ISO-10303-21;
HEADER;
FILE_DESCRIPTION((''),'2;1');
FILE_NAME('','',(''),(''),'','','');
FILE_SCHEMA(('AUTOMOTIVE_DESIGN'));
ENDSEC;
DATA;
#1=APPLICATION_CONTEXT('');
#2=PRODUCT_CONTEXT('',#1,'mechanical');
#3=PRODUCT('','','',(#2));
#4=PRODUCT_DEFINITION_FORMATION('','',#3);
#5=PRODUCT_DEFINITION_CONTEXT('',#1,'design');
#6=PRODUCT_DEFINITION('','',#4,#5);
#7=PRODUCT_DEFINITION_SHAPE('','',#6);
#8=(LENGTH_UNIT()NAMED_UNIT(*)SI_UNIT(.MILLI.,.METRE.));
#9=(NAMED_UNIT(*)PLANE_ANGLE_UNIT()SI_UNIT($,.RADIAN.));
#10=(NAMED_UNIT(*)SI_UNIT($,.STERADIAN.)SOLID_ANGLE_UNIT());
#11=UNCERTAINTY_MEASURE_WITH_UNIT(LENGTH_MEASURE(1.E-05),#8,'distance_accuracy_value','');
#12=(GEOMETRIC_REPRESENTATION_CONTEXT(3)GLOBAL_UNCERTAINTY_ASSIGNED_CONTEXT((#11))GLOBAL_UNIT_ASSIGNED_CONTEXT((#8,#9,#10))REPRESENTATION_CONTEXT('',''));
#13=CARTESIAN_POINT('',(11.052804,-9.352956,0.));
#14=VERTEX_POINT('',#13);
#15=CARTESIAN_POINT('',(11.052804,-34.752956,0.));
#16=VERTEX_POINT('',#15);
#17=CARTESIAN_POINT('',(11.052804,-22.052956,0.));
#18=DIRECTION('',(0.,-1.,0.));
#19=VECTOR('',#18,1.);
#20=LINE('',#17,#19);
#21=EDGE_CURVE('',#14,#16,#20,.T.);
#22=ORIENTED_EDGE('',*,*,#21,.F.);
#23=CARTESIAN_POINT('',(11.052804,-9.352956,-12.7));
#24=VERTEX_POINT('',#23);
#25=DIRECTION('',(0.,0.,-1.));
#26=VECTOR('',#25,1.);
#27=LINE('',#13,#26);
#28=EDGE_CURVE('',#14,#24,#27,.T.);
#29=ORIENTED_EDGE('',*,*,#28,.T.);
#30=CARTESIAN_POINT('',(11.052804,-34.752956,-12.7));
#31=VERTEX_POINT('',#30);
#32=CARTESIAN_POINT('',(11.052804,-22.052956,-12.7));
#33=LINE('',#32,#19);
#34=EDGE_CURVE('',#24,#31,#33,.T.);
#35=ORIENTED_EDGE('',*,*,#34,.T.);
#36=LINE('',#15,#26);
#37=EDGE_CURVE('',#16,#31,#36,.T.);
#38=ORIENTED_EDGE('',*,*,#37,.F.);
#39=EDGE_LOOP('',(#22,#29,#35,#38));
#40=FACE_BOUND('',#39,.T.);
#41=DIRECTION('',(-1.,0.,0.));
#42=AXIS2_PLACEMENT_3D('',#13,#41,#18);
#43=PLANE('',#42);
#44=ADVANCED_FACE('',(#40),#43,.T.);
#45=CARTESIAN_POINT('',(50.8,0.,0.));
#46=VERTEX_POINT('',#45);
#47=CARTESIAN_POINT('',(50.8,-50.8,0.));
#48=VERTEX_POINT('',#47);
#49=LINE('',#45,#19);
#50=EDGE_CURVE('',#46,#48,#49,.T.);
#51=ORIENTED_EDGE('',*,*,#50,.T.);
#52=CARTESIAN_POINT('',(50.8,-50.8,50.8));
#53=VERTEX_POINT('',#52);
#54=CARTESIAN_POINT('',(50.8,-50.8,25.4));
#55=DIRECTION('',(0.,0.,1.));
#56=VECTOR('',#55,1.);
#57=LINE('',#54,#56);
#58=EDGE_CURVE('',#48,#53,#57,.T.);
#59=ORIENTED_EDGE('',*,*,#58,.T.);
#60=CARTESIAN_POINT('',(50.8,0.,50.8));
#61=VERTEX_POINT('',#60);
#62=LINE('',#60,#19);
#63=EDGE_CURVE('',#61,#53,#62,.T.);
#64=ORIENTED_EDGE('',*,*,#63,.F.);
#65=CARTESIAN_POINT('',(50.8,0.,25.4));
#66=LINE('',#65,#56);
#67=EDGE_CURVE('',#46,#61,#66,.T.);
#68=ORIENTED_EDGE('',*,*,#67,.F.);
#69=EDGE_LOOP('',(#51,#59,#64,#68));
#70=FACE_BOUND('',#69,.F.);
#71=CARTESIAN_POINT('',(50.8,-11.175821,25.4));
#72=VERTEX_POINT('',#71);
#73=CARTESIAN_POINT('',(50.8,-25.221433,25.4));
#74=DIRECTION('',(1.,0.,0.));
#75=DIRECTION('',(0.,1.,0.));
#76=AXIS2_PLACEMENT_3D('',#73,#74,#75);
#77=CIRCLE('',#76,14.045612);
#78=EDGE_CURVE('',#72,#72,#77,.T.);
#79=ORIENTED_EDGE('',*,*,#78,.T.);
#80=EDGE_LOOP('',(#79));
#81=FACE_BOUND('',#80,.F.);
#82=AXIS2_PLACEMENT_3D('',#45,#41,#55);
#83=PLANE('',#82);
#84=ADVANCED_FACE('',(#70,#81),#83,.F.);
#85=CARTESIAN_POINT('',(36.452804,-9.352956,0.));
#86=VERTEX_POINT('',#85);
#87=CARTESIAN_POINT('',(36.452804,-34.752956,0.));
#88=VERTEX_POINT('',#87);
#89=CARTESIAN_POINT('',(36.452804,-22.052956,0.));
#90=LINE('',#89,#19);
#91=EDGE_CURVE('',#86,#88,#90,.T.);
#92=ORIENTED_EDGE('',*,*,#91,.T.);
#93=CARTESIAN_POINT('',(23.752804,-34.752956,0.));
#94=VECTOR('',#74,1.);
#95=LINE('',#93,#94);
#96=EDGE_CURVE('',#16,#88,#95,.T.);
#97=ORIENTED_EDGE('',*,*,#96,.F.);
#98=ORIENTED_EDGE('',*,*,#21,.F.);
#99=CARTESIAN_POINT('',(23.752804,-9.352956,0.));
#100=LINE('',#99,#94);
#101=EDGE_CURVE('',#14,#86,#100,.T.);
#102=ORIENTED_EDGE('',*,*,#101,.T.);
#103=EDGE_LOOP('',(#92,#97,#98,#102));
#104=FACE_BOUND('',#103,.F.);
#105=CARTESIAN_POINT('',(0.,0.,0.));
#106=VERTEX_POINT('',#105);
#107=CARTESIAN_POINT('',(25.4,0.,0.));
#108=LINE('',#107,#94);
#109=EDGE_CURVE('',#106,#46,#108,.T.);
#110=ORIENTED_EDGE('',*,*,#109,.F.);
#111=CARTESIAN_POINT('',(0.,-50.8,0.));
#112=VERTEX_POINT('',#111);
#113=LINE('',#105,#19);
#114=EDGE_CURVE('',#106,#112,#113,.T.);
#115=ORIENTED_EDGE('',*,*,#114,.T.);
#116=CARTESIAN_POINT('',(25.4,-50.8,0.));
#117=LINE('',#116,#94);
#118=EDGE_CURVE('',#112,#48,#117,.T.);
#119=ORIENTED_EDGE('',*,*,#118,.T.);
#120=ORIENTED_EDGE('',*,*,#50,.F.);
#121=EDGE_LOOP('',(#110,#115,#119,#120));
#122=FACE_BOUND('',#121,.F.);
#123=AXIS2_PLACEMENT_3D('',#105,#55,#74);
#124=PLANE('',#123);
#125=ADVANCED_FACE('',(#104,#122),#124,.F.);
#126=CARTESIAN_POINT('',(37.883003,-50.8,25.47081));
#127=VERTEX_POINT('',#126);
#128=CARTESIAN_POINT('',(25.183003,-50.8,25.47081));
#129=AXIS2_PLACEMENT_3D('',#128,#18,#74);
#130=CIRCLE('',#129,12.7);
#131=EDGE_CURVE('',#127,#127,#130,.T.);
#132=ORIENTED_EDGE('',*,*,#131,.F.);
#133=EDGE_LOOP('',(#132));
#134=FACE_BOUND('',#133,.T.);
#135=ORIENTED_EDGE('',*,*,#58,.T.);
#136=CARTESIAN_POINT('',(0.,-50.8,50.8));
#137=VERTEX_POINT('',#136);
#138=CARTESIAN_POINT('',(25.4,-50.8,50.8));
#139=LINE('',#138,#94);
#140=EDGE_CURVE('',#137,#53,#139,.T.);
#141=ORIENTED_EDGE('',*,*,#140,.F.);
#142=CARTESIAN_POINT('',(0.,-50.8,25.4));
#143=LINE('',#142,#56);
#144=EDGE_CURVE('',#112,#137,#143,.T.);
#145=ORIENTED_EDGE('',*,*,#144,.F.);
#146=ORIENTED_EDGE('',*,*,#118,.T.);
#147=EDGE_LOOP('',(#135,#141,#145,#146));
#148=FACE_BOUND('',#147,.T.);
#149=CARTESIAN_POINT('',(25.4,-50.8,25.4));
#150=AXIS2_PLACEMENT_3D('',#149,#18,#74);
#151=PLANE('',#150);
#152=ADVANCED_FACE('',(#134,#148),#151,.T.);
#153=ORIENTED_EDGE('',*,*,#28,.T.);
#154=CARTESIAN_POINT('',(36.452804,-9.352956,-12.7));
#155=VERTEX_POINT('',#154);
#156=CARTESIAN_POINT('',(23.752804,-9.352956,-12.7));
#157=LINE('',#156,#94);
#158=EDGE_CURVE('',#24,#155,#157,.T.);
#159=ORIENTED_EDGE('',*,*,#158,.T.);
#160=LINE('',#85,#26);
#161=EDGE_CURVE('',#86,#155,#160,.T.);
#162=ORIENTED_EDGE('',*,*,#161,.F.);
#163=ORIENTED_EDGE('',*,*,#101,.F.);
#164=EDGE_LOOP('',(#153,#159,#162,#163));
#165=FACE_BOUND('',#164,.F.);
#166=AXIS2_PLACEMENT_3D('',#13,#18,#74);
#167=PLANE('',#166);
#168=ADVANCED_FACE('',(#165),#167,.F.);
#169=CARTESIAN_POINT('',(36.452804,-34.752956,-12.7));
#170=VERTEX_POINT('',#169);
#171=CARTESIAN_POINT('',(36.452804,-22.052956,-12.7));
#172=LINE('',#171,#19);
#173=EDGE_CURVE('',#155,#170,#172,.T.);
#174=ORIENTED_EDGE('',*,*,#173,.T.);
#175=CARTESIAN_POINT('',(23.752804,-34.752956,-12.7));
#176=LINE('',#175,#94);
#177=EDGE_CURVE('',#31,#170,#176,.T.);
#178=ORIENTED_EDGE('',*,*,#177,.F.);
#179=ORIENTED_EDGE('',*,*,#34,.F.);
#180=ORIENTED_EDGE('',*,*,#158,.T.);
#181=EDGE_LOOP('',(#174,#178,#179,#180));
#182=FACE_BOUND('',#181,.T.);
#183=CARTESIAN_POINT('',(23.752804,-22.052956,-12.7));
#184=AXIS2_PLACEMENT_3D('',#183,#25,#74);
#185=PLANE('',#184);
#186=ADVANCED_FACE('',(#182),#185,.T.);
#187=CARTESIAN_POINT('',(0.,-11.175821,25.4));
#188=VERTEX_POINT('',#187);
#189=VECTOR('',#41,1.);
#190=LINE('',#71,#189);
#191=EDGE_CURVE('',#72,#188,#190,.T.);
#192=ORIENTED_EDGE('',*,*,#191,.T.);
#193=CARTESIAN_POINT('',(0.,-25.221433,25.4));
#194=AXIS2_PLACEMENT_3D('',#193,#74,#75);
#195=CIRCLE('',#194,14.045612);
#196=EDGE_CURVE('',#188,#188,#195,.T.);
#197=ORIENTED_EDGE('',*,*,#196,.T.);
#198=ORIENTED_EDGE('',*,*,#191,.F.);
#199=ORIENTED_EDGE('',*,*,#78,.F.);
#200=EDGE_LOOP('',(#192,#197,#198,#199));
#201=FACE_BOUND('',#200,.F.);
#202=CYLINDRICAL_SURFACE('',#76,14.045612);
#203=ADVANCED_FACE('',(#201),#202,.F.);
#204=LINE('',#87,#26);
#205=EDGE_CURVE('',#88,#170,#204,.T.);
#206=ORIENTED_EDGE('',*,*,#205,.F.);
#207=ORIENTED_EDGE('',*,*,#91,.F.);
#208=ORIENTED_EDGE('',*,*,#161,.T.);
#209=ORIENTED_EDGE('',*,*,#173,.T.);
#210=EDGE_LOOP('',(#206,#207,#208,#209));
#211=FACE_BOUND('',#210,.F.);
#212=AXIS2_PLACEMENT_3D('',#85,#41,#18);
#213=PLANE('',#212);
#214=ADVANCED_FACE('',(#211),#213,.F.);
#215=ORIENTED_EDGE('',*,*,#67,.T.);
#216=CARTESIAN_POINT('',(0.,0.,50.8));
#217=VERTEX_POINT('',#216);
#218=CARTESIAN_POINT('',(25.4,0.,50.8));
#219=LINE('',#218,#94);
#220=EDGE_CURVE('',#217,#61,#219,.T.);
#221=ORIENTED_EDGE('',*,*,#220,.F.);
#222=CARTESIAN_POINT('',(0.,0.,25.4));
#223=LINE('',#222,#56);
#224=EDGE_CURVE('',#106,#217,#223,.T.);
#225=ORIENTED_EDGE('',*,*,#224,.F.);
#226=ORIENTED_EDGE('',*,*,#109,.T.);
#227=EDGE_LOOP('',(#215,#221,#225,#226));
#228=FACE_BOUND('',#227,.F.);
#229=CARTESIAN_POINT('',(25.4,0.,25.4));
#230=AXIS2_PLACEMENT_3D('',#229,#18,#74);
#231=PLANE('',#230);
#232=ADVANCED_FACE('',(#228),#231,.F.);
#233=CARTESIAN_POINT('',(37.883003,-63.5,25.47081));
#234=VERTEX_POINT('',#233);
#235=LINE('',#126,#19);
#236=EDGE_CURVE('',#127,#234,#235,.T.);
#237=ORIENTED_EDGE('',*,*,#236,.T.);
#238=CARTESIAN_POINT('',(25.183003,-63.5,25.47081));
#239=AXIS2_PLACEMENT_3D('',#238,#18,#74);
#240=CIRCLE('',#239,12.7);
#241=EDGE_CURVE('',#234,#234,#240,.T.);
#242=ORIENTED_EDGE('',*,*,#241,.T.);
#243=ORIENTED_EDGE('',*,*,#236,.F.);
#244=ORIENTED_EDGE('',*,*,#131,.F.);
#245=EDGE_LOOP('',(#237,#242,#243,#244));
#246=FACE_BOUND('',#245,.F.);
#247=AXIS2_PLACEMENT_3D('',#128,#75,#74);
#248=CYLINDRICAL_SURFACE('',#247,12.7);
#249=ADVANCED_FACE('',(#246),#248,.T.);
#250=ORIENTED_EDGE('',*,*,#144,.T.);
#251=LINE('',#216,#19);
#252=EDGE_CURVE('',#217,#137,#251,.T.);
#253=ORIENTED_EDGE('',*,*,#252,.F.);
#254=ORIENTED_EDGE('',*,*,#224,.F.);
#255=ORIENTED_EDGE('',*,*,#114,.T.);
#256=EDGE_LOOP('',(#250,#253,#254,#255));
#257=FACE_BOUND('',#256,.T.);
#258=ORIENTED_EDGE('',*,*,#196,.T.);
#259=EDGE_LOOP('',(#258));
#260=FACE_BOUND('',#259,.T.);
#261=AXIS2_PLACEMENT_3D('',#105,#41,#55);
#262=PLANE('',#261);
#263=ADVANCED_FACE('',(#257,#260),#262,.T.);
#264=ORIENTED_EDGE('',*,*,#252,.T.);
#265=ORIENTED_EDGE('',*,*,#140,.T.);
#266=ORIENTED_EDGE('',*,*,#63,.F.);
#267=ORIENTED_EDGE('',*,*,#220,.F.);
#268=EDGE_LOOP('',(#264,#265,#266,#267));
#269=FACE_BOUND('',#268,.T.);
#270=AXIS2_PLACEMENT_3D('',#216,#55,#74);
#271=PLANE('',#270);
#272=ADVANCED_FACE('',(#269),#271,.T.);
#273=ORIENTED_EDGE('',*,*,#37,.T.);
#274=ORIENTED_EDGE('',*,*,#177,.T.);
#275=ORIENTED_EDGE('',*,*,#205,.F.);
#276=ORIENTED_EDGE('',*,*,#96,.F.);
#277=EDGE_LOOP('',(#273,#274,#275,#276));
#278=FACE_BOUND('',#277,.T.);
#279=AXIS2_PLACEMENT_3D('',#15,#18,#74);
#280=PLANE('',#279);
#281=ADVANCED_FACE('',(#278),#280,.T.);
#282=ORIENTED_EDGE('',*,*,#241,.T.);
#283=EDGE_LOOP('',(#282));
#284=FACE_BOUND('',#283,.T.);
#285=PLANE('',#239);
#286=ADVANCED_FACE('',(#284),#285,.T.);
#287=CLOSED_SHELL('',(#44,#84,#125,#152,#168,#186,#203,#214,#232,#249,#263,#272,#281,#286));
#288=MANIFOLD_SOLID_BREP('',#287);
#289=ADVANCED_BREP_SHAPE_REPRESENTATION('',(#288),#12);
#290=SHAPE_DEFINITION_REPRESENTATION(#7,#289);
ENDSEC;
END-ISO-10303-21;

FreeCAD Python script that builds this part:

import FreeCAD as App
import Part
import Sketcher

V = App.Vector
Q = App.Units.Quantity

doc = App.newDocument("Part")
params = doc.addObject("Spreadsheet::Sheet", "Params")
for row, (alias, value) in enumerate([
    ("sketch1_width", "2 in"),
    ("pad1_length", "2 in"),
    ("sketch2_diameter", "1 in"),
    ("pad2_length", "0.5 in"),
    ("pocket1_length", "2 in"),
    ("sketch4_width", "1 in"),
    ("pad3_length", "0.5 in"),
], start=1):
    params.set(f"A{row}", alias)
    params.set(f"B{row}", "=" + value)
    params.setAlias(f"B{row}", alias)

body = doc.addObject("PartDesign::Body", "Body")

sketch1 = body.newObject("Sketcher::SketchObject", "Sketch")
sketch1.AttachmentSupport = (doc.getObject("XZ_Plane"), [""])
sketch1.MapMode = "FlatFace"
sketch1.addGeometry(Part.LineSegment(V(0, 51, 0), V(0, 0, 0)), False)
sketch1.addGeometry(Part.LineSegment(V(0, 0, 0), V(51, 0, 0)), False)
sketch1.addGeometry(Part.LineSegment(V(51, 0, 0), V(51, 51, 0)), False)
sketch1.addGeometry(Part.LineSegment(V(51, 51, 0), V(0, 51, 0)), False)
sketch1.addConstraint(Sketcher.Constraint("Coincident", 0, 2, 1, 1))
sketch1.addConstraint(Sketcher.Constraint("Coincident", 1, 2, 2, 1))
sketch1.addConstraint(Sketcher.Constraint("Coincident", 2, 2, 3, 1))
sketch1.addConstraint(Sketcher.Constraint("Coincident", 3, 2, 0, 1))
sketch1.addConstraint(Sketcher.Constraint("Vertical", 0))
sketch1.addConstraint(Sketcher.Constraint("Horizontal", 1))
sketch1.addConstraint(Sketcher.Constraint("Vertical", 2))
sketch1.addConstraint(Sketcher.Constraint("Horizontal", 3))
sketch1.addConstraint(Sketcher.Constraint("Coincident", 0, 2, -1, 1))
sketch1.addConstraint(Sketcher.Constraint("Equal", 3, 0))
sketch1.addConstraint(Sketcher.Constraint("DistanceX", 1, 1, 1, 2, Q("2 in")))
sketch1.setExpression("Constraints[10]", "Params.sketch1_width")
pad1 = body.newObject("PartDesign::Pad", "Pad")
pad1.Profile = sketch1
pad1.setExpression("Length", "Params.pad1_length")

sketch2 = body.newObject("Sketcher::SketchObject", "Sketch001")
sketch2.AttachmentSupport = (doc.getObject("XZ_Plane"), [""])
sketch2.MapMode = "FlatFace"
sketch2.AttachmentOffset = App.Placement(V(0, 0, 2 * 25.4), App.Rotation())
sketch2.addGeometry(Part.Circle(V(25, 25, 0), V(0, 0, 1), 13), False)
sketch2.addConstraint(Sketcher.Constraint("Diameter", 0, Q("1 in")))
sketch2.addConstraint(Sketcher.Constraint("DistanceY", -1, 1, 0, 3, Q("25.47081 mm")))
sketch2.addConstraint(Sketcher.Constraint("DistanceX", -1, 1, 0, 3, Q("25.183003 mm")))
sketch2.setExpression("Constraints[0]", "Params.sketch2_diameter")
pad2 = body.newObject("PartDesign::Pad", "Pad001")
pad2.Profile = sketch2
pad2.setExpression("Length", "Params.pad2_length")

sketch3 = body.newObject("Sketcher::SketchObject", "Sketch002")
sketch3.AttachmentSupport = (doc.getObject("YZ_Plane"), [""])
sketch3.MapMode = "FlatFace"
sketch3.AttachmentOffset = App.Placement(V(0, 0, 2 * 25.4), App.Rotation())
sketch3.addGeometry(Part.Circle(V(-25, 25, 0), V(0, 0, 1), 14), False)
sketch3.addConstraint(Sketcher.Constraint("DistanceY", -1, 1, 0, 3, Q("1 in")))
sketch3.addConstraint(Sketcher.Constraint("Diameter", 0, Q("28.091224 mm")))
sketch3.addConstraint(Sketcher.Constraint("DistanceX", 0, 3, -1, 1, Q("25.221433 mm")))
pocket1 = body.newObject("PartDesign::Pocket", "Pocket")
pocket1.Profile = sketch3
pocket1.setExpression("Length", "Params.pocket1_length")

sketch4 = body.newObject("Sketcher::SketchObject", "Sketch003")
sketch4.AttachmentSupport = (doc.getObject("XY_Plane"), [""])
sketch4.MapMode = "FlatFace"
sketch4.addGeometry(Part.LineSegment(V(11, -35, 0), V(11, -9, 0)), False)
sketch4.addGeometry(Part.LineSegment(V(11, -9, 0), V(36, -9, 0)), False)
sketch4.addGeometry(Part.LineSegment(V(36, -9, 0), V(36, -35, 0)), False)
sketch4.addGeometry(Part.LineSegment(V(36, -35, 0), V(11, -35, 0)), False)
sketch4.addConstraint(Sketcher.Constraint("Coincident", 0, 2, 1, 1))
sketch4.addConstraint(Sketcher.Constraint("Coincident", 1, 2, 2, 1))
sketch4.addConstraint(Sketcher.Constraint("Coincident", 2, 2, 3, 1))
sketch4.addConstraint(Sketcher.Constraint("Coincident", 3, 2, 0, 1))
sketch4.addConstraint(Sketcher.Constraint("Vertical", 0))
sketch4.addConstraint(Sketcher.Constraint("Horizontal", 1))
sketch4.addConstraint(Sketcher.Constraint("Vertical", 2))
sketch4.addConstraint(Sketcher.Constraint("Horizontal", 3))
sketch4.addConstraint(Sketcher.Constraint("Equal", 3, 0))
sketch4.addConstraint(Sketcher.Constraint("DistanceX", 1, 1, 1, 2, Q("1 in")))
sketch4.addConstraint(Sketcher.Constraint("DistanceX", -1, 1, 0, 2, Q("11.052804 mm")))
sketch4.addConstraint(Sketcher.Constraint("DistanceY", 0, 2, -1, 1, Q("9.352956 mm")))
sketch4.setExpression("Constraints[9]", "Params.sketch4_width")
pad3 = body.newObject("PartDesign::Pad", "Pad002")
pad3.Profile = sketch4
pad3.setExpression("Length", "Params.pad3_length")
pad3.Reversed = True

doc.recompute()
